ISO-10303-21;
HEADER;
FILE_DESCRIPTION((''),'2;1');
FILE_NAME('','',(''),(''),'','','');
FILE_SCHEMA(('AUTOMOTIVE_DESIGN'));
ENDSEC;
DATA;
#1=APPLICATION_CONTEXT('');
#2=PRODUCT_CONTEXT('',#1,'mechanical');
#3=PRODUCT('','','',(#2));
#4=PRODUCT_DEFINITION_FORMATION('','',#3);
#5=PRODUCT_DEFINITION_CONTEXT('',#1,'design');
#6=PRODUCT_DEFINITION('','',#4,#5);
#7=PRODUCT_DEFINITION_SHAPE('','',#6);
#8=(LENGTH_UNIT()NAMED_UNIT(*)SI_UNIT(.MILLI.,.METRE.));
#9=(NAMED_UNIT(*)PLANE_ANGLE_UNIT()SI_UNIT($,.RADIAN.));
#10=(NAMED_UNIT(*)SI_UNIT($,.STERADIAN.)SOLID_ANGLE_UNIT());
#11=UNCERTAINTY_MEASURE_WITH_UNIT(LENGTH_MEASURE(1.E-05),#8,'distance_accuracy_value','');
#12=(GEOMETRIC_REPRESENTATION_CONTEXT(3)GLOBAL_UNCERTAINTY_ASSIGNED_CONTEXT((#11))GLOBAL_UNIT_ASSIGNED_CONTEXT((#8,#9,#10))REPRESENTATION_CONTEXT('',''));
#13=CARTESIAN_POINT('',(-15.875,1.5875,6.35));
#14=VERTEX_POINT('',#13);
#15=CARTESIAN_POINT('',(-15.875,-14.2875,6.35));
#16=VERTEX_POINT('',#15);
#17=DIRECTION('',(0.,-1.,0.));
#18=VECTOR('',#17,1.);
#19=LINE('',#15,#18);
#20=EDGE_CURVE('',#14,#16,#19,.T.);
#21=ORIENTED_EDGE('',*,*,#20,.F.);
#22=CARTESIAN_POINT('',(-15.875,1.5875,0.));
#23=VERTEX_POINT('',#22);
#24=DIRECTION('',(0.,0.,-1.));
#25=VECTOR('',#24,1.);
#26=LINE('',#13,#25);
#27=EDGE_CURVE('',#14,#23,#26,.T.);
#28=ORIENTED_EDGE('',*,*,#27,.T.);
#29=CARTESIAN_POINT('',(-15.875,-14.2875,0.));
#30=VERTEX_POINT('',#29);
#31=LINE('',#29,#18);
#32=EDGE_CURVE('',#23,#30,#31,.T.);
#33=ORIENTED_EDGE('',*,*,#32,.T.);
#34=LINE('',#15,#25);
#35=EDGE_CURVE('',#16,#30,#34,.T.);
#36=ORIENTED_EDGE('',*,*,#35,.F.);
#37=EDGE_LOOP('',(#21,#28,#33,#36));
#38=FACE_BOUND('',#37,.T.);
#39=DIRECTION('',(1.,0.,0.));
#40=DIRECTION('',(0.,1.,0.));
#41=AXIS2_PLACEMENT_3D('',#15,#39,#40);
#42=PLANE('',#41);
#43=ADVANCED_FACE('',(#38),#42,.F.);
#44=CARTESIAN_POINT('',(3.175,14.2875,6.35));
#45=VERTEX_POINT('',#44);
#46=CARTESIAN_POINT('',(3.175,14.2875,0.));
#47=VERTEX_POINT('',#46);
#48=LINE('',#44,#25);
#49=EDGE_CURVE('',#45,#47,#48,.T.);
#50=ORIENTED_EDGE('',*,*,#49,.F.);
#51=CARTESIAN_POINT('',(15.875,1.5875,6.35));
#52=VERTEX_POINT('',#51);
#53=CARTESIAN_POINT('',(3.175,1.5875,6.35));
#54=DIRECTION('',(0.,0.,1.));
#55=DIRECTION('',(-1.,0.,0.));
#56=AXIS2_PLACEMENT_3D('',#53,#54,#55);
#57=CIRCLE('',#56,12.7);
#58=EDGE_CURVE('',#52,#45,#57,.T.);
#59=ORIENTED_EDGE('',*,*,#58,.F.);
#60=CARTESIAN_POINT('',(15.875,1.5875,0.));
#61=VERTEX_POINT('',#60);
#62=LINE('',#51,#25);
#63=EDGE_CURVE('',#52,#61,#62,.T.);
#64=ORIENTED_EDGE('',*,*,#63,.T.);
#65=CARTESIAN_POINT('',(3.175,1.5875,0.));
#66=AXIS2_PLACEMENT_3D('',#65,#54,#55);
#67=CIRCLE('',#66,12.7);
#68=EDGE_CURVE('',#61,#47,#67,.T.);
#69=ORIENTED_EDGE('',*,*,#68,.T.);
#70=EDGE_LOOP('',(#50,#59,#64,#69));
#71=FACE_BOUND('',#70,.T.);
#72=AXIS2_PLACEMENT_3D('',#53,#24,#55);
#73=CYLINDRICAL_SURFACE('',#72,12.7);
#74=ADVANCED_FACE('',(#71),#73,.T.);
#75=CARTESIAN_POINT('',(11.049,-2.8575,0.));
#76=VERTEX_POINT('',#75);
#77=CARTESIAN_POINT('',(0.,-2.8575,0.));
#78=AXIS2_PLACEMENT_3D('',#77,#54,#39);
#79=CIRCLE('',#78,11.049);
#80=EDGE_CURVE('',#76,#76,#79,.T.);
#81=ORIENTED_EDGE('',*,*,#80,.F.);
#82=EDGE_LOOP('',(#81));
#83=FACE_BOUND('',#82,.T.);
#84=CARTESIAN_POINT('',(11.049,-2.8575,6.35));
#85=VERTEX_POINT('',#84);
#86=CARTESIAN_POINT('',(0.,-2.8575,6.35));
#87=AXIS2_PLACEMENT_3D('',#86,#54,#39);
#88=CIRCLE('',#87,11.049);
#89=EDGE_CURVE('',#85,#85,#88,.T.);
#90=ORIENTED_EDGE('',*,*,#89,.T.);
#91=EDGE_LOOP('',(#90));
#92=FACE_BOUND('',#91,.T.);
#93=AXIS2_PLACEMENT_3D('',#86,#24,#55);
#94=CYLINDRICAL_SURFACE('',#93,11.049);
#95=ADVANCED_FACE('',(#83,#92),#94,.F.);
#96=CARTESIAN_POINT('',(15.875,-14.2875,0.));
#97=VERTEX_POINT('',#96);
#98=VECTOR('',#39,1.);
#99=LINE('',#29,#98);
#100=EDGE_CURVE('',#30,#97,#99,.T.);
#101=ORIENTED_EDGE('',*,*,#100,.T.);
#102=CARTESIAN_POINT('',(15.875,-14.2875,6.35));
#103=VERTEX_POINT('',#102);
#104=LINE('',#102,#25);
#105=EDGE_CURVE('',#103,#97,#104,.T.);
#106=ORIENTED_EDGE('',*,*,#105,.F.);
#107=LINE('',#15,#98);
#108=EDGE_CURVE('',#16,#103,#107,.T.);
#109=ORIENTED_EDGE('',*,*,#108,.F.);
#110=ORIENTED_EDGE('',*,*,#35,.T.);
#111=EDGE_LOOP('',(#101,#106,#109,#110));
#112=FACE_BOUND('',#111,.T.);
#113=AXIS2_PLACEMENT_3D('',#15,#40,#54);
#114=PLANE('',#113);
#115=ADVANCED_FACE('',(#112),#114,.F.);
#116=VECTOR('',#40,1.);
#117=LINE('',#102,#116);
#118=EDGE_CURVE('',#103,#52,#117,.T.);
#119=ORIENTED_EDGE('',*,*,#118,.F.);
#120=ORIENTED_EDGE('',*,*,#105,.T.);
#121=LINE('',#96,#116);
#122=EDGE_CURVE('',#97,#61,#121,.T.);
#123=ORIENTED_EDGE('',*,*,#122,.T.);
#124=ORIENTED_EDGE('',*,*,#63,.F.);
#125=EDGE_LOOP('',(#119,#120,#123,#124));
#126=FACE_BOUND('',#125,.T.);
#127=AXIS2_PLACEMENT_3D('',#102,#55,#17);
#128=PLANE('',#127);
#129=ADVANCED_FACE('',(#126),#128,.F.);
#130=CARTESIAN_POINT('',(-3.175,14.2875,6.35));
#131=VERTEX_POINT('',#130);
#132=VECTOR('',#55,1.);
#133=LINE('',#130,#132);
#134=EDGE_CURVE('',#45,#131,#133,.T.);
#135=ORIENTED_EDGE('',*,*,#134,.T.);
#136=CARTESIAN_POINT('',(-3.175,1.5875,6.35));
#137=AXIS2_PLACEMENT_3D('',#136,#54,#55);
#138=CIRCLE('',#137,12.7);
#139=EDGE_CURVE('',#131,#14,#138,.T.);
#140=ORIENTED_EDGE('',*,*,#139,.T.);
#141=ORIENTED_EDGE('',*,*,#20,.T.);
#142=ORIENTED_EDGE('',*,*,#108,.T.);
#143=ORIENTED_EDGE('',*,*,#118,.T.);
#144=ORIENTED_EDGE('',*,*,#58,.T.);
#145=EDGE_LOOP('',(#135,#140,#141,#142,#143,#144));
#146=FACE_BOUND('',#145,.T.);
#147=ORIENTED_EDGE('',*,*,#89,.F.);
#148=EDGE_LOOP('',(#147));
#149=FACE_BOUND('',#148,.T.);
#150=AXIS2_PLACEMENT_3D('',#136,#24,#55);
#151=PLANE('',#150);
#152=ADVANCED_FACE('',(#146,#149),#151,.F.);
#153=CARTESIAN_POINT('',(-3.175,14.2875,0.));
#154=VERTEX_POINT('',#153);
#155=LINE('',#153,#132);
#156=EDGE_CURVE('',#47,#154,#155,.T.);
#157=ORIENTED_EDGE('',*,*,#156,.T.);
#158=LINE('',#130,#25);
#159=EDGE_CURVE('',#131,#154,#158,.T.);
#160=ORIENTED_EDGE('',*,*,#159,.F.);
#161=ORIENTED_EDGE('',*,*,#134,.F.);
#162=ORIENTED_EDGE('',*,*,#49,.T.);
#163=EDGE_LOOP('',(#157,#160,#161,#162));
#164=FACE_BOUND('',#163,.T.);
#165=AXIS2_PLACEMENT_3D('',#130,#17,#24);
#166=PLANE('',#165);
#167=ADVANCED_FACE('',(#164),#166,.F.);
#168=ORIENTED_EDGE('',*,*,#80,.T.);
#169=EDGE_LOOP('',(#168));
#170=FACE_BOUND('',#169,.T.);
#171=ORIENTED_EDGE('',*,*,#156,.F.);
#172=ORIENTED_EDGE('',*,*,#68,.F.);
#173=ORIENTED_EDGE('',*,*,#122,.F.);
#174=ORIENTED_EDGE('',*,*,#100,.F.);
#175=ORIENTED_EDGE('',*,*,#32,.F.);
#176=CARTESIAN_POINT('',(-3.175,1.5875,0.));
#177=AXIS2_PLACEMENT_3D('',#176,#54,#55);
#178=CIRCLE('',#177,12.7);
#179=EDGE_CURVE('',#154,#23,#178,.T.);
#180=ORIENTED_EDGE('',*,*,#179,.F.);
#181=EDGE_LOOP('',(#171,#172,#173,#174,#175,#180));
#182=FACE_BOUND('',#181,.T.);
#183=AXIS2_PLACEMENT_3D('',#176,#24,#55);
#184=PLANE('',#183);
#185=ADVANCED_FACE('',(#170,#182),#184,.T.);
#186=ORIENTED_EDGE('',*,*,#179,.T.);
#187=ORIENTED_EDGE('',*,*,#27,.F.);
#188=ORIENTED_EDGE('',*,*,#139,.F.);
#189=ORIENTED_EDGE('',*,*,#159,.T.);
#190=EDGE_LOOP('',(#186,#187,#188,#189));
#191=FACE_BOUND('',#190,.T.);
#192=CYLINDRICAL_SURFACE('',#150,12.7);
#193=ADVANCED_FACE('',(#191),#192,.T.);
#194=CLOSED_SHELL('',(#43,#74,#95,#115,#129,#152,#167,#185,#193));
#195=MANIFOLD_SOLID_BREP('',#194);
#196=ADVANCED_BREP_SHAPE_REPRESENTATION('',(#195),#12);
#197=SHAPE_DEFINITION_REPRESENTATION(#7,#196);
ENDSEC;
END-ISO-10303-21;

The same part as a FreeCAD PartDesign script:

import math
import FreeCAD as App
import Part
import Sketcher
from FreeCAD import Vector
Q = App.Units.Quantity

doc = App.newDocument("Part")
body = doc.addObject("PartDesign::Body", "Body")

sketch1 = body.newObject("Sketcher::SketchObject", "Sketch")
sketch1.AttachmentSupport = (doc.getObject("XY_Plane"), [""])
sketch1.MapMode = "FlatFace"
sketch1.addGeometry([
    Part.LineSegment(Vector(-16, -14, 0), Vector(16, -14, 0)),
    Part.LineSegment(Vector(16, -14, 0), Vector(16, 2, 0)),
    Part.ArcOfCircle(Part.Circle(Vector(3, 2, 0), Vector(0, 0, 1), 13), math.radians(0), math.radians(90)),
    Part.LineSegment(Vector(3, 14, 0), Vector(-3, 14, 0)),
    Part.ArcOfCircle(Part.Circle(Vector(-3, 2, 0), Vector(0, 0, 1), 13), math.radians(90), math.radians(180)),
    Part.LineSegment(Vector(-16, 2, 0), Vector(-16, -14, 0)),
    Part.Circle(Vector(0, -3, 0), Vector(0, 0, 1), 11),
], False)
sketch1.addConstraint([
    Sketcher.Constraint("Coincident", 0, 2, 1, 1),
    Sketcher.Constraint("Tangent", 1, 2, 2, 1),
    Sketcher.Constraint("Tangent", 2, 2, 3, 1),
    Sketcher.Constraint("Tangent", 3, 2, 4, 1),
    Sketcher.Constraint("Tangent", 4, 2, 5, 1),
    Sketcher.Constraint("Coincident", 5, 2, 0, 1),
    Sketcher.Constraint("Horizontal", 0),
    Sketcher.Constraint("Vertical", 1),
    Sketcher.Constraint("Horizontal", 3),
    Sketcher.Constraint("Vertical", 5),
    Sketcher.Constraint("Equal", 2, 4),
    Sketcher.Constraint("PointOnObject", 6, 3, -2),
    Sketcher.Constraint("Radius", 2, Q("0.5 in")),
    Sketcher.Constraint("Diameter", 6, Q("0.87 in")),
    Sketcher.Constraint("DistanceX", 0, 1, 0, 2, Q("1.25 in")),
    Sketcher.Constraint("DistanceY", 1, 1, 1, 2, Q("0.625 in")),
    Sketcher.Constraint("DistanceY", 0, 2, 6, 3, Q("0.45 in")),
    Sketcher.Constraint("DistanceX", -1, 1, 2, 3, Q("0.125 in")),
    Sketcher.Constraint("DistanceY", -1, 1, 2, 3, Q("0.0625 in")),
])
pad1 = body.newObject("PartDesign::Pad", "Pad")
pad1.Profile = sketch1
pad1.Length = Q("0.25 in")

doc.recompute()
